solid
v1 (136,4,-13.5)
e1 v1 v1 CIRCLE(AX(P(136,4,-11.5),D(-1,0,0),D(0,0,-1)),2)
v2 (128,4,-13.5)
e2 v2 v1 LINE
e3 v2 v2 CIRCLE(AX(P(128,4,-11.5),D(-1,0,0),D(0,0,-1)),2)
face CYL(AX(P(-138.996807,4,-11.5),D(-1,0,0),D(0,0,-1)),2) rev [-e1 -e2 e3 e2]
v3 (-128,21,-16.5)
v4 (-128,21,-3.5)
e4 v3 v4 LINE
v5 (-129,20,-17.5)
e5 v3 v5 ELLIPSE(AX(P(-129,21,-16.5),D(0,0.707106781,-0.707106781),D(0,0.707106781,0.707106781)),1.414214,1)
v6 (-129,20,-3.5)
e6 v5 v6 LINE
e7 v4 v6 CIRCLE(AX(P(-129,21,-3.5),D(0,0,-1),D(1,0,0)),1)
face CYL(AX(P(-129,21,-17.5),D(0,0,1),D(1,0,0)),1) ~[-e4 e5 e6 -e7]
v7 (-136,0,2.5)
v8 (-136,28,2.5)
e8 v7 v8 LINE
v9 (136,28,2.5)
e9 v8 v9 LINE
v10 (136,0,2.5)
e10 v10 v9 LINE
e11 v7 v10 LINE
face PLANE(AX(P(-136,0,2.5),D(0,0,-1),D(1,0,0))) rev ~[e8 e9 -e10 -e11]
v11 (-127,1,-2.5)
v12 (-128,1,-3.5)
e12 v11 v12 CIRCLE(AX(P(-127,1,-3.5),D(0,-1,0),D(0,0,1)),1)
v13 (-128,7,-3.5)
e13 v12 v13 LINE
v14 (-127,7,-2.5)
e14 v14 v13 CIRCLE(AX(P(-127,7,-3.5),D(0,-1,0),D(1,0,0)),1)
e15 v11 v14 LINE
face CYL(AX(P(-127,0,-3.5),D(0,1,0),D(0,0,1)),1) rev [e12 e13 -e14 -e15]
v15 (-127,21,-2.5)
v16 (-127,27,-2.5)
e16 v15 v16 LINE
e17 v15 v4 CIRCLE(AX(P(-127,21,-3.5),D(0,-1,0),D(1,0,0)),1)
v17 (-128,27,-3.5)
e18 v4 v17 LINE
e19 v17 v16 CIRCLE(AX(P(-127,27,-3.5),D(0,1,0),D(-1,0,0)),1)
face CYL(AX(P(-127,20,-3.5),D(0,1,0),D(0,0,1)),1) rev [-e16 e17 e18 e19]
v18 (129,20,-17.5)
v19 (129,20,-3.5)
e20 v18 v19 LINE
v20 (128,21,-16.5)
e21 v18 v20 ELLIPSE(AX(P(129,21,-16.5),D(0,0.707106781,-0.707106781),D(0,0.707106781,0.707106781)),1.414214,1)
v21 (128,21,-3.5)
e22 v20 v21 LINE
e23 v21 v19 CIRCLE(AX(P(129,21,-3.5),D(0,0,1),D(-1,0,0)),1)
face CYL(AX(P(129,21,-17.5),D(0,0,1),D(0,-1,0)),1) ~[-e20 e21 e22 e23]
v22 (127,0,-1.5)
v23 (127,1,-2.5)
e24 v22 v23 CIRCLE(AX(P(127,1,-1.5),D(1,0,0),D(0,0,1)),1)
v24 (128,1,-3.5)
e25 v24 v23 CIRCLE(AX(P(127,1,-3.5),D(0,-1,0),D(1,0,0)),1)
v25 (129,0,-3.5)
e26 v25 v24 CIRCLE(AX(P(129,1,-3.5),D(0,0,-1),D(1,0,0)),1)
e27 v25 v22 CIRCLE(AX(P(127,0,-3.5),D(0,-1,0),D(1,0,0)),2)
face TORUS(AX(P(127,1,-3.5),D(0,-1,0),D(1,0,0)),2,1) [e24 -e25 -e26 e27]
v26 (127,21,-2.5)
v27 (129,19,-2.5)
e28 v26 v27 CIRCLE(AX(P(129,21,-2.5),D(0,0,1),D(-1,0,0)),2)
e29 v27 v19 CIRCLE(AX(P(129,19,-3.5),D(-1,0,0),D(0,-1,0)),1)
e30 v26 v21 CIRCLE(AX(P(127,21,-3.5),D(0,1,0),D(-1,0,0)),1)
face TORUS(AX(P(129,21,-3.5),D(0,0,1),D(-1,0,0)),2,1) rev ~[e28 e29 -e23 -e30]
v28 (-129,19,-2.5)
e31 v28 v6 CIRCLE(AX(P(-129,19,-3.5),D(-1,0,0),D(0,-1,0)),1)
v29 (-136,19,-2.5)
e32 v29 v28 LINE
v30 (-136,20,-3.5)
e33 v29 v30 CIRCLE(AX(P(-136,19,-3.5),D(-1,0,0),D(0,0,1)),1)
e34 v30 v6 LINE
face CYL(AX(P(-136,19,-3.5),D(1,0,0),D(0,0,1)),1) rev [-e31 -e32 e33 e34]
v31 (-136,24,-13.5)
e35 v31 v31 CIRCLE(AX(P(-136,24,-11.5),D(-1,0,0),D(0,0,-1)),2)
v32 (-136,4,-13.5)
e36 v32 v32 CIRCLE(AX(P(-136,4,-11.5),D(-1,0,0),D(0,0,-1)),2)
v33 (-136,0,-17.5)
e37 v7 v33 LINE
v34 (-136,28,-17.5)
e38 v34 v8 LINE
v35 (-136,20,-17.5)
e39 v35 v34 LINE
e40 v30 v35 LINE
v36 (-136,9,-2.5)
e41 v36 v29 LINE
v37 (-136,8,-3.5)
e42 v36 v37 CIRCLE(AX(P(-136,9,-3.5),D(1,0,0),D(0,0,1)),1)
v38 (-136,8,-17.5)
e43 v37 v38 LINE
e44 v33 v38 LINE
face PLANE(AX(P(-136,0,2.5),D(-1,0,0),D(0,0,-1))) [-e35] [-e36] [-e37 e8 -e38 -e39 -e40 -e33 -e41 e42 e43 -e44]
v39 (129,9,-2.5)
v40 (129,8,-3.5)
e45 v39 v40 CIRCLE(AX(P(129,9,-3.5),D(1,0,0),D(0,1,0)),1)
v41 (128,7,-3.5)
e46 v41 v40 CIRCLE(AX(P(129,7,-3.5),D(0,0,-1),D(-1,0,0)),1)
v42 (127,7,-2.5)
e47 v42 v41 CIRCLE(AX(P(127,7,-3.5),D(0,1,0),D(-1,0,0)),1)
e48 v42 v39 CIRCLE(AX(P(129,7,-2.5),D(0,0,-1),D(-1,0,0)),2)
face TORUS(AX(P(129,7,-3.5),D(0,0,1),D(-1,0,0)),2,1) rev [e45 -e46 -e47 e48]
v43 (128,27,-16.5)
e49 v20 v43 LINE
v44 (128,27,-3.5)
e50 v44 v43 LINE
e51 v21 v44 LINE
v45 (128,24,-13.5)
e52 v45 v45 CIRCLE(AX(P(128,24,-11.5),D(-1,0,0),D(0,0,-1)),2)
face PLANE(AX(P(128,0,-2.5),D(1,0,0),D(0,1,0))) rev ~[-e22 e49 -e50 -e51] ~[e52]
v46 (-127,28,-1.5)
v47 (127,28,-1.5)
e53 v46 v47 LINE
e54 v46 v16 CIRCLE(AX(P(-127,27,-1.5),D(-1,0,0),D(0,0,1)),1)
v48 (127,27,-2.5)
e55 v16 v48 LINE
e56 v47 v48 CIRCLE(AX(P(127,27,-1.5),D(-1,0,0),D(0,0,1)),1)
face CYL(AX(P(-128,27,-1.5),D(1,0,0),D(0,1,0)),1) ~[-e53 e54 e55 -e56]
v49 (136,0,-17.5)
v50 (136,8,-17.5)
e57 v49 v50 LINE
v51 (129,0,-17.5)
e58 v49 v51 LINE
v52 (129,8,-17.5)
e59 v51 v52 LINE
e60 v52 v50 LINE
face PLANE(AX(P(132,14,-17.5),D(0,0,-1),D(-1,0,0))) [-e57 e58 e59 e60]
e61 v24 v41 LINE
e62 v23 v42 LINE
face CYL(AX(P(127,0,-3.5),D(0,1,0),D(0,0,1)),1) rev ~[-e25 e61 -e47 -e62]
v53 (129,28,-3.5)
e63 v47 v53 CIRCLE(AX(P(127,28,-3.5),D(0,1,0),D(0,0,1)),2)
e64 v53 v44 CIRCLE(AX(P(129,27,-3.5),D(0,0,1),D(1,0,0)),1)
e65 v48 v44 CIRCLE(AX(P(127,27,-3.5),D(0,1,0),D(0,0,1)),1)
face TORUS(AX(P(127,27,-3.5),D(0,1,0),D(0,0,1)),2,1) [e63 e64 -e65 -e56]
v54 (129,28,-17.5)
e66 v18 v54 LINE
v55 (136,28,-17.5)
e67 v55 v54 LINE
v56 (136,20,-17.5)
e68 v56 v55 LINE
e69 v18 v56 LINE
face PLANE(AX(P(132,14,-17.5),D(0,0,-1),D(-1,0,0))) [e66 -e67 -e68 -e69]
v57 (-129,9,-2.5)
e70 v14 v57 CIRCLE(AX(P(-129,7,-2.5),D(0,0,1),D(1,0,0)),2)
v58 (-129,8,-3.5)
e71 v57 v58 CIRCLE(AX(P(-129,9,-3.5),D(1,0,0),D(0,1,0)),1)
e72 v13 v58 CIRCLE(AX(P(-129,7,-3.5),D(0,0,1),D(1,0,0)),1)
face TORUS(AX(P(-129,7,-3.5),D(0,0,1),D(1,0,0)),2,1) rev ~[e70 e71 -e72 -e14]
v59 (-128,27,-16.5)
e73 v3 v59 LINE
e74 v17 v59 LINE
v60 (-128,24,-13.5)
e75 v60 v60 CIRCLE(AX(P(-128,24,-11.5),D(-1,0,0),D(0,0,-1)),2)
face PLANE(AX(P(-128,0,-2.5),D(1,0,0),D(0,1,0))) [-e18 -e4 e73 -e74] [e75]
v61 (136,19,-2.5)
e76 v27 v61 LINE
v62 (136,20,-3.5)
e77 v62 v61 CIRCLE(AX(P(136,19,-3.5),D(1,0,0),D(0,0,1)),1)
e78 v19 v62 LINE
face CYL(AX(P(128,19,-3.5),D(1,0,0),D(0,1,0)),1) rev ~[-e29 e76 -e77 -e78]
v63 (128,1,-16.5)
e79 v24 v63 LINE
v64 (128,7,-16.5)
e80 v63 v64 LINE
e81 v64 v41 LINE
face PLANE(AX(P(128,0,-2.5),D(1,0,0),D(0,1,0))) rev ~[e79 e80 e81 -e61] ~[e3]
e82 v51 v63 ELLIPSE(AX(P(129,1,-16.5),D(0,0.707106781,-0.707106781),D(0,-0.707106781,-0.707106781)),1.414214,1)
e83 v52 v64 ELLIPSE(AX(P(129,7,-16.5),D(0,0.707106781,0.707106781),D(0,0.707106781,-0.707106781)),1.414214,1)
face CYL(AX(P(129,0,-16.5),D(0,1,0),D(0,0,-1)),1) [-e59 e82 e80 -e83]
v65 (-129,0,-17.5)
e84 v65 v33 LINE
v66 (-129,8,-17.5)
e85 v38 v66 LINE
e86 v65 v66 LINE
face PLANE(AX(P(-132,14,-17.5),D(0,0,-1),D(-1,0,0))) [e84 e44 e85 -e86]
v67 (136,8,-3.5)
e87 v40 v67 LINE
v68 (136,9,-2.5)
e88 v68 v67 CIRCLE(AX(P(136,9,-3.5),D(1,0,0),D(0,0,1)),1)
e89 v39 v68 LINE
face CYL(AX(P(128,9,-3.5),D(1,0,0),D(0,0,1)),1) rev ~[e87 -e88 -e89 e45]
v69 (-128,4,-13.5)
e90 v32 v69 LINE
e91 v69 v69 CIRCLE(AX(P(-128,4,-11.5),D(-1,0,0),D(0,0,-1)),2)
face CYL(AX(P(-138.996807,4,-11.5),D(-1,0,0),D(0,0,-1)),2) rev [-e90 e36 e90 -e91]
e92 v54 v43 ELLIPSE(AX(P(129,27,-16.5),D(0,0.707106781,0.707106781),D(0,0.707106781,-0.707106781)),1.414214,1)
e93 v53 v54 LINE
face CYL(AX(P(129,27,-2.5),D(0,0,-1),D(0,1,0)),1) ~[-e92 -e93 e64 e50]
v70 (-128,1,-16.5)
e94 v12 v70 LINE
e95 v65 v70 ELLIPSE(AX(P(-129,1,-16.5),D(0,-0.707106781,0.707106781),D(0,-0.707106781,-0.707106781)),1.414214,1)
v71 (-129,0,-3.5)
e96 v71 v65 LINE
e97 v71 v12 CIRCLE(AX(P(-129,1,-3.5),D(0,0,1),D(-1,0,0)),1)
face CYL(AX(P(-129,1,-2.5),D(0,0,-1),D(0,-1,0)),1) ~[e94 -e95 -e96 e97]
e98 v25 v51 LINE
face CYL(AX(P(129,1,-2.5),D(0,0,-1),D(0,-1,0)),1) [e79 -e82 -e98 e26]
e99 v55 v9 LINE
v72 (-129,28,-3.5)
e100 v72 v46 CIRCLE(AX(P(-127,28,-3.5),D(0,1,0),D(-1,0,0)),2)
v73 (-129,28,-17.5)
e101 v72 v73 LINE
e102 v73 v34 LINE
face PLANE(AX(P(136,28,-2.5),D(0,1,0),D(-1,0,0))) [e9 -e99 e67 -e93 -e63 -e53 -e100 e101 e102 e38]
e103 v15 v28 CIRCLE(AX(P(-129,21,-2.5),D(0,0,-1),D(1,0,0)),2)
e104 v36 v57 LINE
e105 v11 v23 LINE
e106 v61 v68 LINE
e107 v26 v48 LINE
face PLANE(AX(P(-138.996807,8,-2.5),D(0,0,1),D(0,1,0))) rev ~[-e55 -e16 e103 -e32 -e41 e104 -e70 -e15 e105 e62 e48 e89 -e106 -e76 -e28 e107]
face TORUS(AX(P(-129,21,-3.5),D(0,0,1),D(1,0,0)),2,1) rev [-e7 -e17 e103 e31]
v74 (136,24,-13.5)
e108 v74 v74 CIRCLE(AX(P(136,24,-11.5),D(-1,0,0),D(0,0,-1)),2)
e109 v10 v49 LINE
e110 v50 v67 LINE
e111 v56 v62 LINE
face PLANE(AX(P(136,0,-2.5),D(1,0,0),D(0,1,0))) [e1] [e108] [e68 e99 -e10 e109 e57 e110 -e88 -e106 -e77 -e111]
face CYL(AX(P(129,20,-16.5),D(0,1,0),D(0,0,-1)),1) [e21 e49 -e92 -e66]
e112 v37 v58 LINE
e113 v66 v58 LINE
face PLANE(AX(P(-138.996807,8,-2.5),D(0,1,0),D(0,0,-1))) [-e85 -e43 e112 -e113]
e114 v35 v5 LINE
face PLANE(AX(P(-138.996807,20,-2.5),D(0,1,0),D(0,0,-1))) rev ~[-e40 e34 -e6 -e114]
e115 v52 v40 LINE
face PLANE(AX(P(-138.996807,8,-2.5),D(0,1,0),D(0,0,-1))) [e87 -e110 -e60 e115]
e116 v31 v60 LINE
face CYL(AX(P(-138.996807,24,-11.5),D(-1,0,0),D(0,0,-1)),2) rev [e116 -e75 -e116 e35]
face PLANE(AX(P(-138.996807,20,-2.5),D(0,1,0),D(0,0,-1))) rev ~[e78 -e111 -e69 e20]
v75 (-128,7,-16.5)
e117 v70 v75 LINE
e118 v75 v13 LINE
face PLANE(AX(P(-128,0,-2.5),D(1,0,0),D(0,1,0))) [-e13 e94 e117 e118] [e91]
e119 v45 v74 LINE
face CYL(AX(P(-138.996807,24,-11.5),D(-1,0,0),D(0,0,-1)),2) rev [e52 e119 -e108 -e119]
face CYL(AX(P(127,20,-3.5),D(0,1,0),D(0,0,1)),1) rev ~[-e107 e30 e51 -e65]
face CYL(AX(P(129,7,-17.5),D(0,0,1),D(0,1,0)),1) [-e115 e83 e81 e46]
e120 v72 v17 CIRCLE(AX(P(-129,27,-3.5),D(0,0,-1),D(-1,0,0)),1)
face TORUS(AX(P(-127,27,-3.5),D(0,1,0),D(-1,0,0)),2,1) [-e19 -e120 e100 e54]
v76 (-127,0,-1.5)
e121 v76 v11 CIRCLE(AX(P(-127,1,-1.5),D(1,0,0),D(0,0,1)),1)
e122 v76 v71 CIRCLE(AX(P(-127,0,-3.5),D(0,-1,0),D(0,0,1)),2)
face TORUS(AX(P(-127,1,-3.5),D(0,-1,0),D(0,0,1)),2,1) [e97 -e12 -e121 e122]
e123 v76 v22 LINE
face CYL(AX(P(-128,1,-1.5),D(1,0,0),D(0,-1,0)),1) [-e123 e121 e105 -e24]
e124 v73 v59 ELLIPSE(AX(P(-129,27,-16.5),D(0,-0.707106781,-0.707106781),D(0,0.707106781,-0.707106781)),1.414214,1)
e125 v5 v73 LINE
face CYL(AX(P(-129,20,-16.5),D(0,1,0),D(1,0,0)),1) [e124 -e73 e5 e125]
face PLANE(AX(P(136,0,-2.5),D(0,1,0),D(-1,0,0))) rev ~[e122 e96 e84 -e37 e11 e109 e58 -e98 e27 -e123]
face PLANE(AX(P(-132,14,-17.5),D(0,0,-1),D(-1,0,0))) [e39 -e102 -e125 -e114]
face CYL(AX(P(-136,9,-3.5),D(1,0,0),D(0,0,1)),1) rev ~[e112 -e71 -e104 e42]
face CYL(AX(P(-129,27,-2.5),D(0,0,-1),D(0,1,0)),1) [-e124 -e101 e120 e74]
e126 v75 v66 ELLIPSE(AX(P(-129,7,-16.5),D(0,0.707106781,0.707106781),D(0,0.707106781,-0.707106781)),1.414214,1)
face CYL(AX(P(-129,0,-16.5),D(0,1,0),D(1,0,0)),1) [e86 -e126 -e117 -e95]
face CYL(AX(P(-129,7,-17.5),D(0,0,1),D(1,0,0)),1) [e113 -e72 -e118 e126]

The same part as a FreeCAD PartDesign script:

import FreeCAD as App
import Part
import Sketcher
from FreeCAD import Vector


def edges_at(feature, points):
    """Names of the edges that pass closest to the given points."""
    edges = feature.Shape.Edges
    near = lambda p: min(range(len(edges)), key=lambda i: edges[i].distToShape(Part.Vertex(*p))[0])
    return sorted({f"Edge{near(p) + 1}" for p in points})


def add_polygon(sketch, points):
    """Adds a closed chain of lines whose ends are joined by coincident constraints."""
    first, n = sketch.GeometryCount, len(points)
    for a, b in zip(points, points[1:] + points[:1]):
        sketch.addGeometry(Part.LineSegment(App.Vector(*a, 0), App.Vector(*b, 0)), False)
    for i in range(n):
        sketch.addConstraint(Sketcher.Constraint("Coincident", first + i, 2, first + (i + 1) % n, 1))

doc = App.newDocument("Part")
body = doc.addObject("PartDesign::Body", "Body")

# Sketch on XZ plane
sketch1 = doc.addObject("Sketcher::SketchObject", "Sketch")
body.addObject(sketch1)
sketch1.AttachmentSupport = (doc.XZ_Plane, [""])
sketch1.MapMode = "FlatFace"
add_polygon(sketch1, [(-136, -2.5), (-136, 2.5), (136, 2.5), (136, -2.5)])  # lines 0-3
sketch1.addConstraint([
    Sketcher.Constraint("Vertical", 0),
    Sketcher.Constraint("Horizontal", 1),
    Sketcher.Constraint("Vertical", 2),
    Sketcher.Constraint("Horizontal", 3),
    Sketcher.Constraint("Symmetric", 0, 2, 2, 2, -1, 1),
    Sketcher.Constraint("DistanceX", 1, 1, 1, 2, 272.0),
    Sketcher.Constraint("DistanceY", 0, 1, 0, 2, 5.0),
])
pad1 = doc.addObject("PartDesign::Pad", "Pad")
body.addObject(pad1)
pad1.Profile = sketch1
pad1.Length = 28
pad1.Reversed = True

# Sketch on XY plane
sketch2 = doc.addObject("Sketcher::SketchObject", "Sketch001")
body.addObject(sketch2)
sketch2.AttachmentSupport = (doc.XY_Plane, [""])
sketch2.MapMode = "FlatFace"
sketch2.AttachmentOffset = App.Placement(Vector(0, 0, -2.5), App.Rotation())
add_polygon(sketch2, [(136, 28), (136, 0), (128, 0), (128, 28)])  # lines 0-3
add_polygon(sketch2, [(-128, 28), (-128, 0), (-136, 0), (-136, 28)])  # lines 4-7
sketch2.addConstraint([
    Sketcher.Constraint("Vertical", 0),
    Sketcher.Constraint("Horizontal", 1),
    Sketcher.Constraint("Vertical", 2),
    Sketcher.Constraint("Horizontal", 3),
    Sketcher.Constraint("Vertical", 4),
    Sketcher.Constraint("Horizontal", 5),
    Sketcher.Constraint("Vertical", 6),
    Sketcher.Constraint("Horizontal", 7),
    Sketcher.Constraint("Symmetric", 1, 2, 4, 2, -1, 1),
    Sketcher.Constraint("Symmetric", 0, 2, 5, 2, -2),
    Sketcher.Constraint("Horizontal", 3, 2, 6, 2),
    Sketcher.Constraint("DistanceX", 1, 2, 1, 1, 8.0),
    Sketcher.Constraint("DistanceY", 0, 2, 0, 1, 28.0),
    Sketcher.Constraint("DistanceX", -1, 1, 0, 2, 136.0),
])
pad2 = doc.addObject("PartDesign::Pad", "Pad001")
body.addObject(pad2)
pad2.Profile = sketch2
pad2.Length = 15
pad2.Reversed = True

# Sketch on YZ plane
sketch3 = doc.addObject("Sketcher::SketchObject", "Sketch002")
body.addObject(sketch3)
sketch3.AttachmentSupport = (doc.YZ_Plane, [""])
sketch3.MapMode = "FlatFace"
sketch3.AttachmentOffset = App.Placement(Vector(0, 0, 136), App.Rotation())
add_polygon(sketch3, [(20, -2.5), (8, -2.5), (8, -17.5), (20, -17.5)])  # lines 0-3
sketch3.addConstraint([
    Sketcher.Constraint("Horizontal", 0),
    Sketcher.Constraint("Vertical", 1),
    Sketcher.Constraint("Horizontal", 2),
    Sketcher.Constraint("Vertical", 3),
    Sketcher.Constraint("DistanceX", 0, 2, 0, 1, 12.0),
    Sketcher.Constraint("DistanceY", 1, 2, 1, 1, 15.0),
    Sketcher.Constraint("DistanceX", -1, 1, 0, 2, 8.0),
    Sketcher.Constraint("DistanceY", 0, 2, -1, 1, 2.5),
])
pocket1 = doc.addObject("PartDesign::Pocket", "Pocket")
body.addObject(pocket1)
pocket1.Profile = sketch3
pocket1.Type = "ThroughAll"
pocket1.Midplane = True
doc.recompute()

fillet = doc.addObject("PartDesign::Fillet", "Fillet")
body.addObject(fillet)
fillet.Base = (pocket1, edges_at(pocket1, [
    (0, 0, -2.5),
    (0, 28, -2.5),
    (128, 4, -2.5),
    (128, 0, -10),
    (128, 28, -10),
    (128, 4, -17.5),
    (-128, 24, -2.5),
    (-128, 28, -10),
    (-128, 0, -10),
    (-128, 24, -17.5),
    (-128, 4, -17.5),
    (-128, 4, -2.5),
    (128, 24, -17.5),
    (128, 24, -2.5),
    (132, 8, -2.5),
    (-132, 8, -2.5),
    (132, 20, -2.5),
    (-132, 20, -2.5),
    (128, 8, -10),
    (-128, 8, -10),
    (128, 20, -10),
    (-128, 20, -10),
]))
fillet.Radius = 1

# Sketch on YZ plane
sketch4 = doc.addObject("Sketcher::SketchObject", "Sketch003")
body.addObject(sketch4)
sketch4.AttachmentSupport = (doc.YZ_Plane, [""])
sketch4.MapMode = "FlatFace"
sketch4.AttachmentOffset = App.Placement(Vector(0, 0, 136), App.Rotation())
sketch4.addGeometry([
    Part.Circle(Vector(24, -11.5, 0), Vector(0, 0, 1), 2),
    Part.Circle(Vector(4, -11.5, 0), Vector(0, 0, 1), 2),
], False)
sketch4.addConstraint([
    Sketcher.Constraint("Equal", 0, 1),
    Sketcher.Constraint("Horizontal", 0, 3, 1, 3),
    Sketcher.Constraint("Diameter", 0, 4.0),
    Sketcher.Constraint("DistanceX", -1, 1, 0, 3, 24.0),
    Sketcher.Constraint("DistanceX", -1, 1, 1, 3, 4.0),
    Sketcher.Constraint("DistanceY", 0, 3, -1, 1, 11.5),
])
pocket2 = doc.addObject("PartDesign::Pocket", "Pocket001")
body.addObject(pocket2)
pocket2.Profile = sketch4
pocket2.Type = "ThroughAll"
pocket2.Midplane = True

doc.recompute()
